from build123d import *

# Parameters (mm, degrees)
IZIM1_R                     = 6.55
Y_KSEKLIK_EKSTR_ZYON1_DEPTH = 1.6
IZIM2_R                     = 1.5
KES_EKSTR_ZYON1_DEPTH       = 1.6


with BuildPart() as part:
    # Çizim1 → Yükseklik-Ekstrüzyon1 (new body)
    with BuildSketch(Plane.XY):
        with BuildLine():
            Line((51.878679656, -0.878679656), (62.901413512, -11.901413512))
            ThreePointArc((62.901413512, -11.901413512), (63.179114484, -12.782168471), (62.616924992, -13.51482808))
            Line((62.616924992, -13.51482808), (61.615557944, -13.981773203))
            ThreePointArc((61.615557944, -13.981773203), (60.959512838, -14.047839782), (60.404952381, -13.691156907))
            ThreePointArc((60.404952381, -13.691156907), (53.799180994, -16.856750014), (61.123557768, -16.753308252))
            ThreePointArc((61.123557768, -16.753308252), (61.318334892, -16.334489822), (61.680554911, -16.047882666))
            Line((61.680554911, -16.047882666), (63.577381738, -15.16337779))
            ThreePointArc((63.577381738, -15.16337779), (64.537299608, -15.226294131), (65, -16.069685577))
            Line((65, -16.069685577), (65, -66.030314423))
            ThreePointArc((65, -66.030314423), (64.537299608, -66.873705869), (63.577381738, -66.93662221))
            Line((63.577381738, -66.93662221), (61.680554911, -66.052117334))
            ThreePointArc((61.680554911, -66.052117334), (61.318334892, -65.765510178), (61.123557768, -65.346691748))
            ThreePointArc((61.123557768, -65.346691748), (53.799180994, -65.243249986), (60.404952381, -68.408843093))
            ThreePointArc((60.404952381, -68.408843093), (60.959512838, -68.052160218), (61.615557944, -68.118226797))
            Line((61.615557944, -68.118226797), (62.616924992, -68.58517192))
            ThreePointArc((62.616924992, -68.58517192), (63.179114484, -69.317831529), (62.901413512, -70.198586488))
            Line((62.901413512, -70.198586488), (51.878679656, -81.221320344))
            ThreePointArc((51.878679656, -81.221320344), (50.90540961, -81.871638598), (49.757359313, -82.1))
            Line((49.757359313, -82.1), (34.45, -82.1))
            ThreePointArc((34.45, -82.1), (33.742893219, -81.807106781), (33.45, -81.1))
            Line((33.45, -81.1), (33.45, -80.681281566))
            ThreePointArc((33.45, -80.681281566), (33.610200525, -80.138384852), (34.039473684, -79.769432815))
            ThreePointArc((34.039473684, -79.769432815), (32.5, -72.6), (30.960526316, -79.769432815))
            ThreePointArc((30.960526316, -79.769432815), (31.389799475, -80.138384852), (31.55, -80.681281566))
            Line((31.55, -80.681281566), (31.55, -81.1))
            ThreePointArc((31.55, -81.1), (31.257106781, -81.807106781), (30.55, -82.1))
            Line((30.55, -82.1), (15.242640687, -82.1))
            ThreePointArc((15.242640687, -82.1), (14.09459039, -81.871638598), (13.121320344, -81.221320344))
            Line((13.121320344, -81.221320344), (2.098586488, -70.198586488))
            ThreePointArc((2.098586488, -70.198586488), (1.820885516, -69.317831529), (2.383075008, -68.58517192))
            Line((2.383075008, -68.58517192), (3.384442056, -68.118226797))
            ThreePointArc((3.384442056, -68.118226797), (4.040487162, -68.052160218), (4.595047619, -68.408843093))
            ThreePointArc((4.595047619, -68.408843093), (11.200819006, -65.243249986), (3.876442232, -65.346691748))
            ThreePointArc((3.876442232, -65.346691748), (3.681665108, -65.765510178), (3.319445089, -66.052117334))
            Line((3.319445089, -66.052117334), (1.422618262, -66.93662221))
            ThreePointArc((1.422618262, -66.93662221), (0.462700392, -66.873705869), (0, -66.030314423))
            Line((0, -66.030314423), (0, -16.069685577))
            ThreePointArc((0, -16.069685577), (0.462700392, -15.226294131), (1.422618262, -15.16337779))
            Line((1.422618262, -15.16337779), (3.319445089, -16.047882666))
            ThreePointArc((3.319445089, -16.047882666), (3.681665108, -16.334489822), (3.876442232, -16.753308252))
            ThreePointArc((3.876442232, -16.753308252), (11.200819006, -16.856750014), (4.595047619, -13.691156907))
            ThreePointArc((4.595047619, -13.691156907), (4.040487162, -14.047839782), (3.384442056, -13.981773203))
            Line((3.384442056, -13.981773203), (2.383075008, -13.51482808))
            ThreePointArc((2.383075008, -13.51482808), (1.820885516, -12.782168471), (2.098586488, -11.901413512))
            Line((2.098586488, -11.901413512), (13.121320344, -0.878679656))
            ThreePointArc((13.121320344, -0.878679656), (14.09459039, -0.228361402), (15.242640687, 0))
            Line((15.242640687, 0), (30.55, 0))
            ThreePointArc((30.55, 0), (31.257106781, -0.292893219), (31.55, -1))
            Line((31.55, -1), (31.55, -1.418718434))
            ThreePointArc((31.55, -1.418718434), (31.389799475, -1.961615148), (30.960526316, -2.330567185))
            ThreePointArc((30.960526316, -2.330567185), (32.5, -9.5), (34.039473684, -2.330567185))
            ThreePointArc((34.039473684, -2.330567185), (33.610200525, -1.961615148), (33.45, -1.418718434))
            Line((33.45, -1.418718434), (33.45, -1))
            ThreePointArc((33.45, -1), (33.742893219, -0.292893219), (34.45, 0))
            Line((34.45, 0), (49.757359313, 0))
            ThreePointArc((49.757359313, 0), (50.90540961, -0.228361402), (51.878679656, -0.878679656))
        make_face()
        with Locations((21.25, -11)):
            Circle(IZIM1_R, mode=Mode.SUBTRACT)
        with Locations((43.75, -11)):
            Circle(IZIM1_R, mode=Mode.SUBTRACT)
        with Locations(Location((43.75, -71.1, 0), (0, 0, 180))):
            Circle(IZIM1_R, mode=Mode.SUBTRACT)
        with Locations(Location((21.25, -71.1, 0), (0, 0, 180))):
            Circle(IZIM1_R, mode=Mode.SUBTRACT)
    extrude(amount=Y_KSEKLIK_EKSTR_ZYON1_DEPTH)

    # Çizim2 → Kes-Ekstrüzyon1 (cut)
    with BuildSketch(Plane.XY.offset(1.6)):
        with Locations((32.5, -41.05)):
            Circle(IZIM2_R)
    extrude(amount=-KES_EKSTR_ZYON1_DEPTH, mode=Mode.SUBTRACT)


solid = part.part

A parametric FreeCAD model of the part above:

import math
import FreeCAD as App
import Part
import Sketcher
Q = App.Units.Quantity

doc = App.newDocument("Part")
params = doc.addObject("Spreadsheet::Sheet", "Params")
for row, (alias, value) in enumerate([
    ("sketch1_radius", "3 mm"),
    ("sketch1_radius2", "1 mm"),
    ("sketch1_diameter", "13.1 mm"),
    ("sketch1_radius3", "3.75 mm"),
    ("pad1_length", "1.6 mm"),
    ("sketch2_diameter", "3 mm"),
    ("pocket1_length", "1.6 mm"),
], start=1):
    params.set(f"A{row}", alias)
    params.set(f"B{row}", "=" + value)
    params.setAlias(f"B{row}", alias)

body = doc.addObject("PartDesign::Body", "Body")

sketch1 = body.newObject("Sketcher::SketchObject", "Sketch")
sketch1.AttachmentSupport = (doc.getObject("XY_Plane"), [""])
sketch1.MapMode = "FlatFace"
sketch1.addGeometry([
    Part.LineSegment(App.Vector(62.9, -11.9, 0), App.Vector(51.88, -0.88, 0)),
    Part.ArcOfCircle(Part.Circle(App.Vector(49.76, -3, 0), App.Vector(0, 0, 1), 3), math.radians(45), math.radians(90)),
    Part.LineSegment(App.Vector(49.76, 0, 0), App.Vector(34.45, 0, 0)),
    Part.ArcOfCircle(Part.Circle(App.Vector(34.45, -1, 0), App.Vector(0, 0, 1), 1), math.radians(90), math.radians(180)),
    Part.LineSegment(App.Vector(33.45, -1, 0), App.Vector(33.45, -1.42, 0)),
    Part.ArcOfCircle(Part.Circle(App.Vector(34.45, -1.42, 0), App.Vector(0, 0, 1), 1), math.radians(180), math.radians(246)),
    Part.ArcOfCircle(Part.Circle(App.Vector(32.5, -5.75, 0), App.Vector(0, 0, 1), 3.75), math.radians(114), math.radians(426)),
    Part.ArcOfCircle(Part.Circle(App.Vector(30.55, -1.42, 0), App.Vector(0, 0, 1), 1), math.radians(-66), math.radians(0)),
    Part.LineSegment(App.Vector(31.55, -1.42, 0), App.Vector(31.55, -1, 0)),
    Part.ArcOfCircle(Part.Circle(App.Vector(30.55, -1, 0), App.Vector(0, 0, 1), 1), math.radians(0), math.radians(90)),
    Part.LineSegment(App.Vector(30.55, 0, 0), App.Vector(15.24, 0, 0)),
    Part.ArcOfCircle(Part.Circle(App.Vector(15.24, -3, 0), App.Vector(0, 0, 1), 3), math.radians(90), math.radians(135)),
    Part.LineSegment(App.Vector(13.12, -0.88, 0), App.Vector(2.1, -11.9, 0)),
    Part.ArcOfCircle(Part.Circle(App.Vector(2.81, -12.61, 0), App.Vector(0, 0, 1), 1), math.radians(135), math.radians(245)),
    Part.LineSegment(App.Vector(2.38, -13.51, 0), App.Vector(3.38, -13.98, 0)),
    Part.ArcOfCircle(Part.Circle(App.Vector(3.81, -13.08, 0), App.Vector(0, 0, 1), 1), math.radians(-115), math.radians(-38)),
    Part.ArcOfCircle(Part.Circle(App.Vector(7.55, -16, 0), App.Vector(0, 0, 1), 3.75), math.radians(-168), math.radians(142)),
    Part.ArcOfCircle(Part.Circle(App.Vector(2.9, -16.95, 0), App.Vector(0, 0, 1), 1), math.radians(12), math.radians(65)),
    Part.LineSegment(App.Vector(3.32, -16.05, 0), App.Vector(1.42, -15.16, 0)),
    Part.ArcOfCircle(Part.Circle(App.Vector(1, -16.07, 0), App.Vector(0, 0, 1), 1), math.radians(65), math.radians(180)),
    Part.LineSegment(App.Vector(0, -16.07, 0), App.Vector(0, -66.03, 0)),
    Part.ArcOfCircle(Part.Circle(App.Vector(1, -66.03, 0), App.Vector(0, 0, 1), 1), math.radians(180), math.radians(295)),
    Part.LineSegment(App.Vector(1.42, -66.94, 0), App.Vector(3.32, -66.05, 0)),
    Part.ArcOfCircle(Part.Circle(App.Vector(2.9, -65.15, 0), App.Vector(0, 0, 1), 1), math.radians(-65), math.radians(-12)),
    Part.ArcOfCircle(Part.Circle(App.Vector(7.55, -66.1, 0), App.Vector(0, 0, 1), 3.75), math.radians(-142), math.radians(168)),
    Part.ArcOfCircle(Part.Circle(App.Vector(3.81, -69.02, 0), App.Vector(0, 0, 1), 1), math.radians(38), math.radians(115)),
    Part.LineSegment(App.Vector(3.38, -68.12, 0), App.Vector(2.38, -68.59, 0)),
    Part.ArcOfCircle(Part.Circle(App.Vector(2.81, -69.49, 0), App.Vector(0, 0, 1), 1), math.radians(115), math.radians(225)),
    Part.LineSegment(App.Vector(2.1, -70.2, 0), App.Vector(13.12, -81.22, 0)),
    Part.ArcOfCircle(Part.Circle(App.Vector(15.24, -79.1, 0), App.Vector(0, 0, 1), 3), math.radians(-135), math.radians(-90)),
    Part.LineSegment(App.Vector(15.24, -82.1, 0), App.Vector(30.55, -82.1, 0)),
    Part.ArcOfCircle(Part.Circle(App.Vector(30.55, -81.1, 0), App.Vector(0, 0, 1), 1), math.radians(-90), math.radians(0)),
    Part.LineSegment(App.Vector(31.55, -81.1, 0), App.Vector(31.55, -80.68, 0)),
    Part.ArcOfCircle(Part.Circle(App.Vector(30.55, -80.68, 0), App.Vector(0, 0, 1), 1), math.radians(0), math.radians(66)),
    Part.ArcOfCircle(Part.Circle(App.Vector(32.5, -76.35, 0), App.Vector(0, 0, 1), 3.75), math.radians(-66), math.radians(246)),
    Part.ArcOfCircle(Part.Circle(App.Vector(34.45, -80.68, 0), App.Vector(0, 0, 1), 1), math.radians(114), math.radians(180)),
    Part.LineSegment(App.Vector(33.45, -80.68, 0), App.Vector(33.45, -81.1, 0)),
    Part.ArcOfCircle(Part.Circle(App.Vector(34.45, -81.1, 0), App.Vector(0, 0, 1), 1), math.radians(-180), math.radians(-90)),
    Part.LineSegment(App.Vector(34.45, -82.1, 0), App.Vector(49.76, -82.1, 0)),
    Part.ArcOfCircle(Part.Circle(App.Vector(49.76, -79.1, 0), App.Vector(0, 0, 1), 3), math.radians(-90), math.radians(-45)),
    Part.LineSegment(App.Vector(51.88, -81.22, 0), App.Vector(62.9, -70.2, 0)),
    Part.ArcOfCircle(Part.Circle(App.Vector(62.19, -69.49, 0), App.Vector(0, 0, 1), 1), math.radians(-45), math.radians(65)),
    Part.LineSegment(App.Vector(62.62, -68.59, 0), App.Vector(61.62, -68.12, 0)),
    Part.ArcOfCircle(Part.Circle(App.Vector(61.19, -69.02, 0), App.Vector(0, 0, 1), 1), math.radians(65), math.radians(142)),
    Part.ArcOfCircle(Part.Circle(App.Vector(57.45, -66.1, 0), App.Vector(0, 0, 1), 3.75), math.radians(12), math.radians(322)),
    Part.ArcOfCircle(Part.Circle(App.Vector(62.1, -65.15, 0), App.Vector(0, 0, 1), 1), math.radians(-168), math.radians(-115)),
    Part.LineSegment(App.Vector(61.68, -66.05, 0), App.Vector(63.58, -66.94, 0)),
    Part.ArcOfCircle(Part.Circle(App.Vector(64, -66.03, 0), App.Vector(0, 0, 1), 1), math.radians(-115), math.radians(0)),
    Part.LineSegment(App.Vector(65, -66.03, 0), App.Vector(65, -16.07, 0)),
    Part.ArcOfCircle(Part.Circle(App.Vector(64, -16.07, 0), App.Vector(0, 0, 1), 1), math.radians(0), math.radians(115)),
    Part.LineSegment(App.Vector(63.58, -15.16, 0), App.Vector(61.68, -16.05, 0)),
    Part.ArcOfCircle(Part.Circle(App.Vector(62.1, -16.95, 0), App.Vector(0, 0, 1), 1), math.radians(115), math.radians(168)),
    Part.ArcOfCircle(Part.Circle(App.Vector(57.45, -16, 0), App.Vector(0, 0, 1), 3.75), math.radians(38), math.radians(348)),
    Part.ArcOfCircle(Part.Circle(App.Vector(61.19, -13.08, 0), App.Vector(0, 0, 1), 1), math.radians(-142), math.radians(-65)),
    Part.LineSegment(App.Vector(61.62, -13.98, 0), App.Vector(62.62, -13.51, 0)),
    Part.ArcOfCircle(Part.Circle(App.Vector(62.19, -12.61, 0), App.Vector(0, 0, 1), 1), math.radians(-65), math.radians(45)),
    Part.Circle(App.Vector(43.75, -71.1, 0), App.Vector(0, 0, 1), 6.55),
    Part.Circle(App.Vector(21.25, -71.1, 0), App.Vector(0, 0, 1), 6.55),
    Part.Circle(App.Vector(43.75, -11, 0), App.Vector(0, 0, 1), 6.55),
    Part.Circle(App.Vector(21.25, -11, 0), App.Vector(0, 0, 1), 6.55),
], False)
sketch1.addConstraint([
    Sketcher.Constraint("Tangent", 0, 2, 1, 1),
    Sketcher.Constraint("Tangent", 1, 2, 2, 1),
    Sketcher.Constraint("Tangent", 2, 2, 3, 1),
    Sketcher.Constraint("Tangent", 3, 2, 4, 1),
    Sketcher.Constraint("Tangent", 4, 2, 5, 1),
    Sketcher.Constraint("Tangent", 5, 2, 6, 2),
    Sketcher.Constraint("Tangent", 6, 1, 7, 1),
    Sketcher.Constraint("Tangent", 7, 2, 8, 1),
    Sketcher.Constraint("Tangent", 8, 2, 9, 1),
    Sketcher.Constraint("Tangent", 9, 2, 10, 1),
    Sketcher.Constraint("Tangent", 10, 2, 11, 1),
    Sketcher.Constraint("Tangent", 11, 2, 12, 1),
    Sketcher.Constraint("Tangent", 12, 2, 13, 1),
    Sketcher.Constraint("Tangent", 13, 2, 14, 1),
    Sketcher.Constraint("Tangent", 14, 2, 15, 1),
    Sketcher.Constraint("Tangent", 15, 2, 16, 2),
    Sketcher.Constraint("Tangent", 16, 1, 17, 1),
    Sketcher.Constraint("Tangent", 17, 2, 18, 1),
    Sketcher.Constraint("Tangent", 18, 2, 19, 1),
    Sketcher.Constraint("Tangent", 19, 2, 20, 1),
    Sketcher.Constraint("Tangent", 20, 2, 21, 1),
    Sketcher.Constraint("Tangent", 21, 2, 22, 1),
    Sketcher.Constraint("Tangent", 22, 2, 23, 1),
    Sketcher.Constraint("Tangent", 23, 2, 24, 2),
    Sketcher.Constraint("Tangent", 24, 1, 25, 1),
    Sketcher.Constraint("Tangent", 25, 2, 26, 1),
    Sketcher.Constraint("Tangent", 26, 2, 27, 1),
    Sketcher.Constraint("Tangent", 27, 2, 28, 1),
    Sketcher.Constraint("Tangent", 28, 2, 29, 1),
    Sketcher.Constraint("Tangent", 29, 2, 30, 1),
    Sketcher.Constraint("Tangent", 30, 2, 31, 1),
    Sketcher.Constraint("Tangent", 31, 2, 32, 1),
    Sketcher.Constraint("Tangent", 32, 2, 33, 1),
    Sketcher.Constraint("Tangent", 33, 2, 34, 2),
    Sketcher.Constraint("Tangent", 34, 1, 35, 1),
    Sketcher.Constraint("Tangent", 35, 2, 36, 1),
    Sketcher.Constraint("Tangent", 36, 2, 37, 1),
    Sketcher.Constraint("Tangent", 37, 2, 38, 1),
    Sketcher.Constraint("Tangent", 38, 2, 39, 1),
    Sketcher.Constraint("Tangent", 39, 2, 40, 1),
    Sketcher.Constraint("Tangent", 40, 2, 41, 1),
    Sketcher.Constraint("Tangent", 41, 2, 42, 1),
    Sketcher.Constraint("Tangent", 42, 2, 43, 1),
    Sketcher.Constraint("Tangent", 43, 2, 44, 2),
    Sketcher.Constraint("Tangent", 44, 1, 45, 1),
    Sketcher.Constraint("Tangent", 45, 2, 46, 1),
    Sketcher.Constraint("Tangent", 46, 2, 47, 1),
    Sketcher.Constraint("Tangent", 47, 2, 48, 1),
    Sketcher.Constraint("Tangent", 48, 2, 49, 1),
    Sketcher.Constraint("Tangent", 49, 2, 50, 1),
    Sketcher.Constraint("Tangent", 50, 2, 51, 1),
    Sketcher.Constraint("Tangent", 51, 2, 52, 2),
    Sketcher.Constraint("Tangent", 52, 1, 53, 1),
    Sketcher.Constraint("Tangent", 53, 2, 54, 1),
    Sketcher.Constraint("Tangent", 54, 2, 55, 1),
    Sketcher.Constraint("Tangent", 55, 2, 0, 1),
    Sketcher.Constraint("Horizontal", 2),
    Sketcher.Constraint("Vertical", 4),
    Sketcher.Constraint("Vertical", 8),
    Sketcher.Constraint("Horizontal", 10),
    Sketcher.Constraint("Vertical", 20),
    Sketcher.Constraint("Horizontal", 30),
    Sketcher.Constraint("Vertical", 32),
    Sketcher.Constraint("Vertical", 36),
    Sketcher.Constraint("Horizontal", 38),
    Sketcher.Constraint("Vertical", 48),
    Sketcher.Constraint("Equal", 3, 5),
    Sketcher.Constraint("Equal", 5, 7),
    Sketcher.Constraint("Equal", 7, 9),
    Sketcher.Constraint("Equal", 1, 11),
    Sketcher.Constraint("Equal", 9, 13),
    Sketcher.Constraint("Equal", 13, 15),
    Sketcher.Constraint("Equal", 6, 16),
    Sketcher.Constraint("Equal", 15, 17),
    Sketcher.Constraint("Equal", 17, 19),
    Sketcher.Constraint("Equal", 19, 21),
    Sketcher.Constraint("Equal", 21, 23),
    Sketcher.Constraint("Equal", 16, 24),
    Sketcher.Constraint("Equal", 23, 25),
    Sketcher.Constraint("Equal", 25, 27),
    Sketcher.Constraint("Equal", 11, 29),
    Sketcher.Constraint("Equal", 27, 31),
    Sketcher.Constraint("Equal", 31, 33),
    Sketcher.Constraint("Equal", 24, 34),
    Sketcher.Constraint("Equal", 33, 35),
    Sketcher.Constraint("Equal", 35, 37),
    Sketcher.Constraint("Equal", 29, 39),
    Sketcher.Constraint("Equal", 37, 41),
    Sketcher.Constraint("Equal", 41, 43),
    Sketcher.Constraint("Equal", 34, 44),
    Sketcher.Constraint("Equal", 43, 45),
    Sketcher.Constraint("Equal", 45, 47),
    Sketcher.Constraint("Equal", 47, 49),
    Sketcher.Constraint("Equal", 49, 51),
    Sketcher.Constraint("Equal", 44, 52),
    Sketcher.Constraint("Equal", 51, 53),
    Sketcher.Constraint("Equal", 53, 55),
    Sketcher.Constraint("Equal", 56, 57),
    Sketcher.Constraint("Equal", 57, 58),
    Sketcher.Constraint("Equal", 58, 59),
    Sketcher.Constraint("PointOnObject", 1, 2, -1),
    Sketcher.Constraint("PointOnObject", 9, 2, -1),
    Sketcher.Constraint("PointOnObject", 19, 2, -2),
    Sketcher.Constraint("Perpendicular", 0, 12),
    Sketcher.Constraint("Parallel", 14, 18),
    Sketcher.Constraint("Parallel", 22, 26),
    Sketcher.Constraint("Perpendicular", 12, 28),
    Sketcher.Constraint("Perpendicular", 28, 40),
    Sketcher.Constraint("Parallel", 18, 42),
    Sketcher.Constraint("Parallel", 42, 46),
    Sketcher.Constraint("Parallel", 26, 50),
    Sketcher.Constraint("Parallel", 50, 54),
    Sketcher.Constraint("Horizontal", 5, 3, 7, 3),
    Sketcher.Constraint("Horizontal", 33, 3, 35, 3),
    Sketcher.Constraint("Horizontal", 31, 3, 37, 3),
    Sketcher.Constraint("Horizontal", 27, 3, 41, 3),
    Sketcher.Constraint("Horizontal", 25, 3, 43, 3),
    Sketcher.Constraint("Horizontal", 24, 3, 44, 3),
    Sketcher.Constraint("Horizontal", 23, 3, 45, 3),
    Sketcher.Constraint("Horizontal", 21, 3, 47, 3),
    Sketcher.Constraint("Horizontal", 19, 3, 49, 3),
    Sketcher.Constraint("Horizontal", 17, 3, 51, 3),
    Sketcher.Constraint("Horizontal", 16, 3, 52, 3),
    Sketcher.Constraint("Horizontal", 15, 3, 53, 3),
    Sketcher.Constraint("Horizontal", 13, 3, 55, 3),
    Sketcher.Constraint("Horizontal", 56, 3, 57, 3),
    Sketcher.Constraint("Horizontal", 58, 3, 59, 3),
    Sketcher.Constraint("Horizontal", 0, 2, 11, 2),
    Sketcher.Constraint("Horizontal", 26, 2, 41, 2),
    Sketcher.Constraint("Vertical", 17, 3, 23, 3),
    Sketcher.Constraint("Vertical", 16, 3, 24, 3),
    Sketcher.Constraint("Vertical", 15, 3, 25, 3),
    Sketcher.Constraint("Vertical", 13, 3, 27, 3),
    Sketcher.Constraint("Vertical", 11, 3, 29, 3),
    Sketcher.Constraint("Vertical", 9, 3, 31, 3),
    Sketcher.Constraint("Vertical", 6, 3, 34, 3),
    Sketcher.Constraint("Vertical", 56, 3, 58, 3),
    Sketcher.Constraint("Vertical", 57, 3, 59, 3),
    Sketcher.Constraint("Equal", 2, 10),
    Sketcher.Constraint("Equal", 8, 32),
    Sketcher.Constraint("Radius", 1, 3.0),
    Sketcher.Constraint("Radius", 3, 1.0),
    Sketcher.Constraint("Diameter", 56, 13.1),
    Sketcher.Constraint("Angle", 14, Q("-25 deg")),
    Sketcher.Constraint("Radius", 6, 3.75),
    Sketcher.Constraint("DistanceY", 16, 3, -1, 1, 16.0),
    Sketcher.Constraint("DistanceX", -1, 1, 47, 3, 64.0),
    Sketcher.Constraint("DistanceY", 58, 3, -1, 1, 11.0),
    Sketcher.Constraint("DistanceY", 24, 3, -1, 1, 66.1),
    Sketcher.Constraint("DistanceY", 56, 3, -1, 1, 71.1),
    Sketcher.Constraint("DistanceX", -1, 1, 3, 3, 34.45),
    Sketcher.Constraint("DistanceY", 6, 3, -1, 1, 5.75),
    Sketcher.Constraint("DistanceX", -1, 1, 16, 3, 7.55),
    Sketcher.Constraint("DistanceX", -1, 1, 56, 3, 43.75),
    Sketcher.Constraint("DistanceX", -1, 1, 57, 3, 21.25),
    Sketcher.Constraint("Distance", 0, 15.5885),
    Sketcher.Constraint("DistanceX", 2, 2, 2, 1, 15.307359),
    Sketcher.Constraint("DistanceY", 20, 2, 20, 1, 49.960629),
])
sketch1.setExpression("Constraints[140]", "Params.sketch1_radius")
sketch1.setExpression("Constraints[141]", "Params.sketch1_radius2")
sketch1.setExpression("Constraints[142]", "Params.sketch1_diameter")
sketch1.setExpression("Constraints[144]", "Params.sketch1_radius3")
pad1 = body.newObject("PartDesign::Pad", "Pad")
pad1.Profile = sketch1
pad1.setExpression("Length", "Params.pad1_length")

sketch2 = body.newObject("Sketcher::SketchObject", "Sketch001")
sketch2.AttachmentSupport = (doc.getObject("XY_Plane"), [""])
sketch2.MapMode = "FlatFace"
sketch2.AttachmentOffset = App.Placement(App.Vector(0, 0, 1.6), App.Rotation())
sketch2.addGeometry(Part.Circle(App.Vector(32.5, -41, 0), App.Vector(0, 0, 1), 1.5), False)
sketch2.addConstraint([
    Sketcher.Constraint("Diameter", 0, 3.0),
    Sketcher.Constraint("DistanceX", -1, 1, 0, 3, 32.5),
    Sketcher.Constraint("DistanceY", 0, 3, -1, 1, 41.05),
])
sketch2.setExpression("Constraints[0]", "Params.sketch2_diameter")
pocket1 = body.newObject("PartDesign::Pocket", "Pocket")
pocket1.Profile = sketch2
pocket1.setExpression("Length", "Params.pocket1_length")

doc.recompute()
